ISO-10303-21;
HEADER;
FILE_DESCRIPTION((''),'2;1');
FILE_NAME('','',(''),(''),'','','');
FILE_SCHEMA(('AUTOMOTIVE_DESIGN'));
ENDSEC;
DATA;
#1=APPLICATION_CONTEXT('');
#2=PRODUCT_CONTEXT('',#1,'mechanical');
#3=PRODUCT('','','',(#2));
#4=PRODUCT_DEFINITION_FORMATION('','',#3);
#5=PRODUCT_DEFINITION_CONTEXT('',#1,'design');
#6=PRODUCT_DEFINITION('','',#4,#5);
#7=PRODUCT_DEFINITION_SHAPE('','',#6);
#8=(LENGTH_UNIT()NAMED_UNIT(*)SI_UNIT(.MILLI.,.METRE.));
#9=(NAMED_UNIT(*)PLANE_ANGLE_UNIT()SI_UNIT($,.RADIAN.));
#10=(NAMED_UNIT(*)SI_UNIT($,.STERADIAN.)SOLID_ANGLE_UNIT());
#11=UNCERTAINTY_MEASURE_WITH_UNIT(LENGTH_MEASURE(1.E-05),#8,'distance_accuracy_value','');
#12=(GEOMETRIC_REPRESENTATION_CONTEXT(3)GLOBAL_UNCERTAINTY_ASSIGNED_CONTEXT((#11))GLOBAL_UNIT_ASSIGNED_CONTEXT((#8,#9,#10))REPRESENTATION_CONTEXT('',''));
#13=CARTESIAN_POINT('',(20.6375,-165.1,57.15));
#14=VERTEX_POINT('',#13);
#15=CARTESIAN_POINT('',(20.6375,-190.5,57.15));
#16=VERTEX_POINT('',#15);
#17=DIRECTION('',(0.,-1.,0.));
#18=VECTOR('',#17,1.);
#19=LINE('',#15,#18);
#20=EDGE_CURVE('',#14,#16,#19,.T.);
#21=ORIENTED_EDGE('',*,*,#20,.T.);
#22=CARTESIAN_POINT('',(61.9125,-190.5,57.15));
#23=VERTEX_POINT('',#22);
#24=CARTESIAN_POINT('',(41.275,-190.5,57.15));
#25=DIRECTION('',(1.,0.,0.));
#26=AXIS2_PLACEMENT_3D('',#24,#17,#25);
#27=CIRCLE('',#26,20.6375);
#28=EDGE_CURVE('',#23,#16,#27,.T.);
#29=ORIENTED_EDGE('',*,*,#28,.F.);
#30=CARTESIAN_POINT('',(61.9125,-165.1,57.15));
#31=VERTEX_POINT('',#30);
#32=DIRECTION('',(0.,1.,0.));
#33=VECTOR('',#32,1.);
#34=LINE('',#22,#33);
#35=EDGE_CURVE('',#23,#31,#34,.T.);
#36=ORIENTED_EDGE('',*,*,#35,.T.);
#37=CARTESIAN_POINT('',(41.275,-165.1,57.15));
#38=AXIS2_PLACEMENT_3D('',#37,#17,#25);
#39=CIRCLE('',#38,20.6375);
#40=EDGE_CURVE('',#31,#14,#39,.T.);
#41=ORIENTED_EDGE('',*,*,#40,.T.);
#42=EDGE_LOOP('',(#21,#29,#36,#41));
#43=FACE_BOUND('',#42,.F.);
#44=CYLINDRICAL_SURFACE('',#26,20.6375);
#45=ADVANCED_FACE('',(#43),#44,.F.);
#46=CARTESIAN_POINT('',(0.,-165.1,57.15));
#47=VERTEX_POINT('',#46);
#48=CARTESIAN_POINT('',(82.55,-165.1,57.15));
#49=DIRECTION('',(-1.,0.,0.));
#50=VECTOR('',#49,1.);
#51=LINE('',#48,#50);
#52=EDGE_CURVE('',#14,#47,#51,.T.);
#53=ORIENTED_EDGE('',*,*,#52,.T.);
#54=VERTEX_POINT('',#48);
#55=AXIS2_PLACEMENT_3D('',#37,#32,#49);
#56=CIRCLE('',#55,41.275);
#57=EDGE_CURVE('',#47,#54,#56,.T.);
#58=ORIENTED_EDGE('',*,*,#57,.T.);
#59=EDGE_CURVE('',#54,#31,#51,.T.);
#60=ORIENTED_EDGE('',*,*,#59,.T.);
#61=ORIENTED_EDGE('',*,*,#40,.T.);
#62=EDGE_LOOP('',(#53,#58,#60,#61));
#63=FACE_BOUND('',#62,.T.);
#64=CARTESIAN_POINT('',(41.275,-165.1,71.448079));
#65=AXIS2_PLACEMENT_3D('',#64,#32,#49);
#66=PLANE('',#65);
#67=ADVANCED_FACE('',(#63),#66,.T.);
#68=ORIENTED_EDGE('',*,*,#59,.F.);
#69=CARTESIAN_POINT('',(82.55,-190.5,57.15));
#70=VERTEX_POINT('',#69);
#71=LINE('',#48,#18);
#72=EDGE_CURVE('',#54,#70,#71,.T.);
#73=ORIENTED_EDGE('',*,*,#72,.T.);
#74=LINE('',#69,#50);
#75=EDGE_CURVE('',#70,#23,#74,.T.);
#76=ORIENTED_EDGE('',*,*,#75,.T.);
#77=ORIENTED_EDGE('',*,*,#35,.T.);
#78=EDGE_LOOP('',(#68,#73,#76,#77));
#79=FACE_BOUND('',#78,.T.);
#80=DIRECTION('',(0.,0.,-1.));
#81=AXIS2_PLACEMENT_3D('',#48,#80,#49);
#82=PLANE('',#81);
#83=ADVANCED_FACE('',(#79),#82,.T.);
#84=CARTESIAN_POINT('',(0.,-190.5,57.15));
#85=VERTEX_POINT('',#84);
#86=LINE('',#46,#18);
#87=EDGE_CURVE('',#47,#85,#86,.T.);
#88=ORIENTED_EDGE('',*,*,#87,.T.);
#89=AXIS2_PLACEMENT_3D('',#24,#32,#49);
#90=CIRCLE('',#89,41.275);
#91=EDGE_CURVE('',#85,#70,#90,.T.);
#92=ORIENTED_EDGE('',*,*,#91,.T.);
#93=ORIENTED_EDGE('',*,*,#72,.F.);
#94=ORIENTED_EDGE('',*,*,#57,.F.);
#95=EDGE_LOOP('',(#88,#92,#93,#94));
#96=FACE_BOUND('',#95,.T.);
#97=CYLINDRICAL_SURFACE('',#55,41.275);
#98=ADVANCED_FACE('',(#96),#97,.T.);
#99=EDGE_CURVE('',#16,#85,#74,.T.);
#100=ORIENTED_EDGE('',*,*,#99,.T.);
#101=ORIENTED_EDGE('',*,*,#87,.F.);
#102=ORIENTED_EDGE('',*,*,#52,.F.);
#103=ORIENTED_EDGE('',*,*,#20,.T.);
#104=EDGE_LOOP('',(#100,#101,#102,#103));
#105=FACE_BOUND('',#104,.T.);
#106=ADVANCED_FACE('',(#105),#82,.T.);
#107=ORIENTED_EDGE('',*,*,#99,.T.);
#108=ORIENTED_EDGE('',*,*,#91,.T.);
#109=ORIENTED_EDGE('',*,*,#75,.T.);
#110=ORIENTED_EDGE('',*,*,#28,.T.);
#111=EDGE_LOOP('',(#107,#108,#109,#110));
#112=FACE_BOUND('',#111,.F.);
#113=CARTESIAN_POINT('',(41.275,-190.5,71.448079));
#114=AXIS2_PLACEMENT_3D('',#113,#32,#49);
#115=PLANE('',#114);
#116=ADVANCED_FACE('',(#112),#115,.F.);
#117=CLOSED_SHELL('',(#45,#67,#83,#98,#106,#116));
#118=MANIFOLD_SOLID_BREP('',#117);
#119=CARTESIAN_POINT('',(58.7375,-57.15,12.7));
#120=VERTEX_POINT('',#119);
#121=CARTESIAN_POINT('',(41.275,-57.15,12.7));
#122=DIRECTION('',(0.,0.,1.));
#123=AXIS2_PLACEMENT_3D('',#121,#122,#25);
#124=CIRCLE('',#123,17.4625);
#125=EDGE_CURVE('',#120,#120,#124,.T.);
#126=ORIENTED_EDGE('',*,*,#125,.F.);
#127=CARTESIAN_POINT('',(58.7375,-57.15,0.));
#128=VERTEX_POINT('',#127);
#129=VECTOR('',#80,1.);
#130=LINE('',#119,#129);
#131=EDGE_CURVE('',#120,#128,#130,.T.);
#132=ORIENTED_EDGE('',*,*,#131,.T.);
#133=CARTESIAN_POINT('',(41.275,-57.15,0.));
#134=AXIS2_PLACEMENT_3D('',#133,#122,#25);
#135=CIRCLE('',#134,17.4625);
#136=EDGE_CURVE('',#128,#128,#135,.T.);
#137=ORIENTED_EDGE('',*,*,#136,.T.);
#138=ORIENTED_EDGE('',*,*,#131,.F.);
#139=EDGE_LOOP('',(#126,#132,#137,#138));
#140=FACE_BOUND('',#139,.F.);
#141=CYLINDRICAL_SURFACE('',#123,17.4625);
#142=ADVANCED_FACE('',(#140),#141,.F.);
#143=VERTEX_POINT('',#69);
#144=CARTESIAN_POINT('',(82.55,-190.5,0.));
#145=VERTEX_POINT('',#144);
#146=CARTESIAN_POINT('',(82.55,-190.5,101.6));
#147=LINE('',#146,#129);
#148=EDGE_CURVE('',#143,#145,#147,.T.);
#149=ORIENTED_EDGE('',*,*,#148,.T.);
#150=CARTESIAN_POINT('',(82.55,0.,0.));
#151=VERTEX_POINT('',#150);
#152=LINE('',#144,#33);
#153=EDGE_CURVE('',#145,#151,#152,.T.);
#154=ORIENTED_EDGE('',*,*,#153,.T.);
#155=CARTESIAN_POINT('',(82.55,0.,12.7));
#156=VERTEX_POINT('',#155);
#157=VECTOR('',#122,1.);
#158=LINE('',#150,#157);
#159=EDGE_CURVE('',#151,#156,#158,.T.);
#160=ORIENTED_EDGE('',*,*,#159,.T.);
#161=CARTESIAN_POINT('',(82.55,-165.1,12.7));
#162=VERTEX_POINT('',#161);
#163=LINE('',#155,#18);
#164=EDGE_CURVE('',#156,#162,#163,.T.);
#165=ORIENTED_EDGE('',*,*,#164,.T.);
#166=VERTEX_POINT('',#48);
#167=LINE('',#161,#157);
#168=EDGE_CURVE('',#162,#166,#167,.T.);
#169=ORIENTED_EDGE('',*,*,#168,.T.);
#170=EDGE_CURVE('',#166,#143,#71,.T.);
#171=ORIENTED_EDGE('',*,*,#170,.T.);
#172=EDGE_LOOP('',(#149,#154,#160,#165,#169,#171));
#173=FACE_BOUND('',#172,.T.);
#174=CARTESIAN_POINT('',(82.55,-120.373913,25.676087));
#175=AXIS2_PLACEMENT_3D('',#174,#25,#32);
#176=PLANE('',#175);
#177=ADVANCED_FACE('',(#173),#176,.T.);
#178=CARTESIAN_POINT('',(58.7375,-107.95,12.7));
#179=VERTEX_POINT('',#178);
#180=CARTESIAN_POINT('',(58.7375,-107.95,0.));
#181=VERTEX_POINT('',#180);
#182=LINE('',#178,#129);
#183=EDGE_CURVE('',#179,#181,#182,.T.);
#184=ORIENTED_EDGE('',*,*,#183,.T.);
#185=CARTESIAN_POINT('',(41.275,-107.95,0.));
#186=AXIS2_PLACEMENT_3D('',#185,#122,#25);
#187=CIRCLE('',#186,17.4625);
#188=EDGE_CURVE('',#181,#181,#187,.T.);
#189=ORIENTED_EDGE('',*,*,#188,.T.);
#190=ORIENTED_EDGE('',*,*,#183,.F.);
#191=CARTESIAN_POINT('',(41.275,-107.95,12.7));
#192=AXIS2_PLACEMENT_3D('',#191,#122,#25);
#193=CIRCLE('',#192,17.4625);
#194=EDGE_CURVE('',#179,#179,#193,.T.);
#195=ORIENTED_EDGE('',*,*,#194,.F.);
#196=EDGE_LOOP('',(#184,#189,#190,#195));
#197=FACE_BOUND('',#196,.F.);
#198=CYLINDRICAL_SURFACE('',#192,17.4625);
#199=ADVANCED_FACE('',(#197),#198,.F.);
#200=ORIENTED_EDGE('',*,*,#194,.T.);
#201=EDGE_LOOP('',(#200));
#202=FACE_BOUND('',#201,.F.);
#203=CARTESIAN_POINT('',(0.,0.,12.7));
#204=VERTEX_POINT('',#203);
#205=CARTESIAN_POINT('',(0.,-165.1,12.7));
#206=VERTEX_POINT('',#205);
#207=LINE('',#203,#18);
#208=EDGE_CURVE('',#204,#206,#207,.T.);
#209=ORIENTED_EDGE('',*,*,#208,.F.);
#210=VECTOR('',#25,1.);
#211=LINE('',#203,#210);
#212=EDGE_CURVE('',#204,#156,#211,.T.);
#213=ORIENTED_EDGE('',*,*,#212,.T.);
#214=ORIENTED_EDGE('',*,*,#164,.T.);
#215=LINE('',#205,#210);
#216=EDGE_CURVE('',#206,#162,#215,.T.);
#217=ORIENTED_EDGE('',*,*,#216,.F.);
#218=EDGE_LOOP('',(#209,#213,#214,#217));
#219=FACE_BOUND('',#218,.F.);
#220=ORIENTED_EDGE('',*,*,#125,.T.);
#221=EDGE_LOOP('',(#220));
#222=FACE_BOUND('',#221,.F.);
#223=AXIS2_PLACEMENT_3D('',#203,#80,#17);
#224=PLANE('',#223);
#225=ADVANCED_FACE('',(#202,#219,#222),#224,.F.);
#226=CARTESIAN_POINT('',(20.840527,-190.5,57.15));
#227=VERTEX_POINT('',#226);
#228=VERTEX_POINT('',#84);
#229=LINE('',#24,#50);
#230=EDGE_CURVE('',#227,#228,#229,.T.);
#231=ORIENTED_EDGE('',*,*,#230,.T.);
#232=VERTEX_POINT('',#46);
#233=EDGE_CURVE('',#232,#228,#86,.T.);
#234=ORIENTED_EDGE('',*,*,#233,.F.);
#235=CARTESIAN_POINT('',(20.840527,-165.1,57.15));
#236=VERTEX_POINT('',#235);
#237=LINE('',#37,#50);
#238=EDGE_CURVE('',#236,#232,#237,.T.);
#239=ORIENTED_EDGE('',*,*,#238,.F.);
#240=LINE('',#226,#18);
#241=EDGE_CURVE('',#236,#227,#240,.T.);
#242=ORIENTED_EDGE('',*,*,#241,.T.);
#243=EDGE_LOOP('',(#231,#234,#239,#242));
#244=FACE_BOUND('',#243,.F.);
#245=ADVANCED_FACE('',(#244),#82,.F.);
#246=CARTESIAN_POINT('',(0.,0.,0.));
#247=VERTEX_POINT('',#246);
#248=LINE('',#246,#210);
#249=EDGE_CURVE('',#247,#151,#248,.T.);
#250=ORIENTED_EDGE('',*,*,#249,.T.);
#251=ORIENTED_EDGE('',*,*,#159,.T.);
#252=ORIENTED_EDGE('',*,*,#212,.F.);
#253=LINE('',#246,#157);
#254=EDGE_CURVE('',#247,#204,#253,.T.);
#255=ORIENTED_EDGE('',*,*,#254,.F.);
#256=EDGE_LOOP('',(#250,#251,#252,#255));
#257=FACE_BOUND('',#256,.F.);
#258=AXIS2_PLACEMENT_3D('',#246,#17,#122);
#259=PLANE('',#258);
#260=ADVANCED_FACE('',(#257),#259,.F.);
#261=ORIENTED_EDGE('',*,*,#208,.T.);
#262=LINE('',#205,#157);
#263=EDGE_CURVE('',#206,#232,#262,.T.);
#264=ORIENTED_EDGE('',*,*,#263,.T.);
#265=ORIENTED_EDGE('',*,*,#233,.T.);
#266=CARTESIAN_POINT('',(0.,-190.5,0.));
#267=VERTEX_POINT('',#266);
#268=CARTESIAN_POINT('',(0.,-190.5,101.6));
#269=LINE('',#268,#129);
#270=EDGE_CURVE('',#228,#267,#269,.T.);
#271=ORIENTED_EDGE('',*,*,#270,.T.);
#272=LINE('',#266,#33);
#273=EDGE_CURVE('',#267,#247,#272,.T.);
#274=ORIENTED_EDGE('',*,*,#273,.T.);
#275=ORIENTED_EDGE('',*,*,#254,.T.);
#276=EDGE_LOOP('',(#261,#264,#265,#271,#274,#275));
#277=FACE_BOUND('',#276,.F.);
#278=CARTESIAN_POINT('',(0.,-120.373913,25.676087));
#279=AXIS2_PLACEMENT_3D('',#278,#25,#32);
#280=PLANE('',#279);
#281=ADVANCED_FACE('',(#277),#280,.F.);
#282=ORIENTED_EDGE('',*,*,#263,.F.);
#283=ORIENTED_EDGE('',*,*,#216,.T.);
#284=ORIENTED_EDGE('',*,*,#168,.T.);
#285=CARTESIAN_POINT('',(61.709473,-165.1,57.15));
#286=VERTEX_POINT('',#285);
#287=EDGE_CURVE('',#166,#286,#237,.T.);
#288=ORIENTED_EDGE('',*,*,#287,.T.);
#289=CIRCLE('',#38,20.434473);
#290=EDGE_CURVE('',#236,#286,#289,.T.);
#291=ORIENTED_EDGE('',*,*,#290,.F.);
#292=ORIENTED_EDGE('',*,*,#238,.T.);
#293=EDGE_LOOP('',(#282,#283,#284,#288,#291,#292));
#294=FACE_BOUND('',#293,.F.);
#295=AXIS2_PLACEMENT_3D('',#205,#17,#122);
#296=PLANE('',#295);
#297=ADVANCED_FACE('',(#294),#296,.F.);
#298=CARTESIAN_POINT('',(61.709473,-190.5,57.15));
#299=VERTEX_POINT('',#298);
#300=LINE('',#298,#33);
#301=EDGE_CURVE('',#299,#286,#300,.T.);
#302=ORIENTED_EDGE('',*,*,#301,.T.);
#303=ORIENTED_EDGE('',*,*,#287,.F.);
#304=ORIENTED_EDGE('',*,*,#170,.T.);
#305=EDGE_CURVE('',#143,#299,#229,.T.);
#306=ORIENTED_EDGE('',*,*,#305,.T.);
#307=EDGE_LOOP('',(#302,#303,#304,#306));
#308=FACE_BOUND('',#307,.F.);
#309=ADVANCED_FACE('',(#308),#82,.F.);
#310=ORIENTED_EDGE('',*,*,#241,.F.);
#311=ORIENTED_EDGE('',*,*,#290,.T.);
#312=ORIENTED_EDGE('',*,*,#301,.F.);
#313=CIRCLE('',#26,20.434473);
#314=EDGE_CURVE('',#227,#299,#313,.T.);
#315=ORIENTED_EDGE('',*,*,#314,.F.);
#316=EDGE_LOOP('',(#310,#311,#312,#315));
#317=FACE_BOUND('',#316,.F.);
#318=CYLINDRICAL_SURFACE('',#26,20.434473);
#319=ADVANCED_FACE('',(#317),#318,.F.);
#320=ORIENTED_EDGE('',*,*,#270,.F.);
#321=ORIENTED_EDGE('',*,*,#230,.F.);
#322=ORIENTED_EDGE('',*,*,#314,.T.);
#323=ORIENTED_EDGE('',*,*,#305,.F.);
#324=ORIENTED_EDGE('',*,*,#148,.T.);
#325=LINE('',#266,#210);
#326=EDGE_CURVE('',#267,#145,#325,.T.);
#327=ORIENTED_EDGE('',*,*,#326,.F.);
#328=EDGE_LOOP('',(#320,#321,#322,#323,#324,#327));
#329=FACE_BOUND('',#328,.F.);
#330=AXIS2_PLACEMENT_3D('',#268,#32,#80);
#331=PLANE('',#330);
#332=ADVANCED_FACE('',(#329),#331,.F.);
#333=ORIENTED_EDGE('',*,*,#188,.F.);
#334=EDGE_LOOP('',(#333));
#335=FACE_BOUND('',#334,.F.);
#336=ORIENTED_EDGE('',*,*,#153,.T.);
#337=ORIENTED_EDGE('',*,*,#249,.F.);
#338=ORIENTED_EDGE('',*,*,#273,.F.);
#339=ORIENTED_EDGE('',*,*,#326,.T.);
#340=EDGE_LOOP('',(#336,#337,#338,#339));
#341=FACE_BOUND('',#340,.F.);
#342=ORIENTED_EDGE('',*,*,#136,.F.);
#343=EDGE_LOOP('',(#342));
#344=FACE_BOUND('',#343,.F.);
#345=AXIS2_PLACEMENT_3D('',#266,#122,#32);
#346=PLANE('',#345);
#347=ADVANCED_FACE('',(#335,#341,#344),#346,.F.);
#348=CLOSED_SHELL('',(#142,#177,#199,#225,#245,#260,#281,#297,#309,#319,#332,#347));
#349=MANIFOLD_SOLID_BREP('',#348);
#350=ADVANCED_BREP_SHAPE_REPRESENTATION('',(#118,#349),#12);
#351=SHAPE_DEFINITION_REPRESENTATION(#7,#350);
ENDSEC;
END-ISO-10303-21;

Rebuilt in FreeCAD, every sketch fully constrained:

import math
import FreeCAD as App
import Part
import Sketcher

V = App.Vector
Q = App.Units.Quantity

doc = App.newDocument("Part")
body = doc.addObject("PartDesign::Body", "Body")

# Sketch on YZ plane
sketch1 = body.newObject("Sketcher::SketchObject", "Sketch")
sketch1.AttachmentSupport = (doc.getObject("YZ_Plane"), [""])
sketch1.MapMode = "FlatFace"
sketch1.addGeometry(Part.LineSegment(V(-190.5, 0, 0), V(0, 0, 0)), False)
sketch1.addGeometry(Part.LineSegment(V(0, 0, 0), V(0, 12.7, 0)), False)
sketch1.addGeometry(Part.LineSegment(V(0, 12.7, 0), V(-165.1, 12.7, 0)), False)
sketch1.addGeometry(Part.LineSegment(V(-165.1, 12.7, 0), V(-165.1, 101.6, 0)), False)
sketch1.addGeometry(Part.LineSegment(V(-165.1, 101.6, 0), V(-190.5, 101.6, 0)), False)
sketch1.addGeometry(Part.LineSegment(V(-190.5, 101.6, 0), V(-190.5, 0, 0)), False)
sketch1.addConstraint(Sketcher.Constraint("Coincident", 0, 2, 1, 1))
sketch1.addConstraint(Sketcher.Constraint("Coincident", 1, 2, 2, 1))
sketch1.addConstraint(Sketcher.Constraint("Coincident", 2, 2, 3, 1))
sketch1.addConstraint(Sketcher.Constraint("Coincident", 3, 2, 4, 1))
sketch1.addConstraint(Sketcher.Constraint("Coincident", 4, 2, 5, 1))
sketch1.addConstraint(Sketcher.Constraint("Coincident", 5, 2, 0, 1))
sketch1.addConstraint(Sketcher.Constraint("Horizontal", 0))
sketch1.addConstraint(Sketcher.Constraint("Vertical", 1))
sketch1.addConstraint(Sketcher.Constraint("Horizontal", 2))
sketch1.addConstraint(Sketcher.Constraint("Vertical", 3))
sketch1.addConstraint(Sketcher.Constraint("Horizontal", 4))
sketch1.addConstraint(Sketcher.Constraint("Vertical", 5))
sketch1.addConstraint(Sketcher.Constraint("Coincident", 0, 2, -1, 1))
sketch1.addConstraint(Sketcher.Constraint("DistanceX", 4, 2, 4, 1, Q("1 in")))
sketch1.addConstraint(Sketcher.Constraint("DistanceY", 5, 2, 5, 1, Q("4 in")))
sketch1.addConstraint(Sketcher.Constraint("DistanceX", 0, 1, 0, 2, Q("7.5 in")))
sketch1.addConstraint(Sketcher.Constraint("DistanceY", 1, 1, 1, 2, Q("0.5 in")))
pad1 = body.newObject("PartDesign::Pad", "Pad")
pad1.Profile = sketch1
pad1.Length = Q("3.25 in")

# Sketch on XY plane
sketch2 = body.newObject("Sketcher::SketchObject", "Sketch001")
sketch2.AttachmentSupport = (doc.getObject("XY_Plane"), [""])
sketch2.MapMode = "FlatFace"
sketch2.AttachmentOffset = App.Placement(V(0, 0, 0.5 * 25.4), App.Rotation())
sketch2.addGeometry(Part.Circle(V(41.275, -57.15, 0), V(0, 0, 1), 17.4625), False)
sketch2.addGeometry(Part.Circle(V(41.275, -107.95, 0), V(0, 0, 1), 17.4625), False)
sketch2.addConstraint(Sketcher.Constraint("Equal", 0, 1))
sketch2.addConstraint(Sketcher.Constraint("Vertical", 0, 3, 1, 3))
sketch2.addConstraint(Sketcher.Constraint("Diameter", 0, Q("1.375 in")))
sketch2.addConstraint(Sketcher.Constraint("DistanceY", 1, 3, 0, 3, Q("2 in")))
sketch2.addConstraint(Sketcher.Constraint("DistanceY", 0, 3, -1, 1, Q("2.25 in")))
sketch2.addConstraint(Sketcher.Constraint("DistanceX", -1, 1, 0, 3, Q("1.625 in")))
pocket1 = body.newObject("PartDesign::Pocket", "Pocket")
pocket1.Profile = sketch2
pocket1.Type = "ThroughAll"

# Sketch on XZ plane
sketch3 = body.newObject("Sketcher::SketchObject", "Sketch002")
sketch3.AttachmentSupport = (doc.getObject("XZ_Plane"), [""])
sketch3.MapMode = "FlatFace"
sketch3.AttachmentOffset = App.Placement(V(0, 0, 6.5 * 25.4), App.Rotation())
sketch3.addGeometry(Part.LineSegment(V(82.55, 101.6, 0), V(82.55, 57.15, 0)), False)
sketch3.addGeometry(Part.LineSegment(V(82.55, 57.15, 0), V(0, 57.15, 0)), False)
sketch3.addGeometry(Part.LineSegment(V(0, 57.15, 0), V(0, 101.6, 0)), False)
sketch3.addGeometry(Part.LineSegment(V(0, 101.6, 0), V(82.55, 101.6, 0)), False)
sketch3.addConstraint(Sketcher.Constraint("Coincident", 0, 2, 1, 1))
sketch3.addConstraint(Sketcher.Constraint("Coincident", 1, 2, 2, 1))
sketch3.addConstraint(Sketcher.Constraint("Coincident", 2, 2, 3, 1))
sketch3.addConstraint(Sketcher.Constraint("Coincident", 3, 2, 0, 1))
sketch3.addConstraint(Sketcher.Constraint("Vertical", 0))
sketch3.addConstraint(Sketcher.Constraint("Horizontal", 1))
sketch3.addConstraint(Sketcher.Constraint("Vertical", 2))
sketch3.addConstraint(Sketcher.Constraint("Horizontal", 3))
sketch3.addConstraint(Sketcher.Constraint("PointOnObject", 1, 2, -2))
sketch3.addConstraint(Sketcher.Constraint("DistanceY", -1, 1, 2, 2, Q("4 in")))
sketch3.addConstraint(Sketcher.Constraint("DistanceX", 1, 2, 1, 1, Q("3.25 in")))
sketch3.addConstraint(Sketcher.Constraint("DistanceY", 0, 2, 0, 1, Q("1.75 in")))
pocket2 = body.newObject("PartDesign::Pocket", "Pocket001")
pocket2.Profile = sketch3
pocket2.Type = "ThroughAll"
pocket2.Reversed = True

# Sketch on XZ plane
sketch4 = body.newObject("Sketcher::SketchObject", "Sketch003")
sketch4.AttachmentSupport = (doc.getObject("XZ_Plane"), [""])
sketch4.MapMode = "FlatFace"
sketch4.AttachmentOffset = App.Placement(V(0, 0, 7.5 * 25.4), App.Rotation())
sketch4.addGeometry(Part.Circle(V(41.275, 57.15, 0), V(0, 0, 1), 20.434473), False)
sketch4.addConstraint(Sketcher.Constraint("DistanceY", -1, 1, 0, 3, Q("2.25 in")))
sketch4.addConstraint(Sketcher.Constraint("DistanceX", -1, 1, 0, 3, Q("1.625 in")))
sketch4.addConstraint(Sketcher.Constraint("Diameter", 0, Q("40.868946 mm")))
pocket3 = body.newObject("PartDesign::Pocket", "Pocket002")
pocket3.Profile = sketch4
pocket3.Length = Q("1 in")
body2 = doc.addObject("PartDesign::Body", "Body001")

# Sketch on XZ plane
sketch5 = body2.newObject("Sketcher::SketchObject", "Sketch004")
sketch5.AttachmentSupport = (doc.getObject("XZ_Plane001"), [""])
sketch5.MapMode = "FlatFace"
sketch5.AttachmentOffset = App.Placement(V(0, 0, 6.5 * 25.4), App.Rotation())
sketch5.addGeometry(Part.LineSegment(V(82.55, 57.15, 0), V(0, 57.15, 0)), False)
sketch5.addGeometry(Part.ArcOfCircle(Part.Circle(V(41.275, 57.15, 0), V(0, 0, 1), 41.275), math.radians(0), math.radians(180)), False)
sketch5.addConstraint(Sketcher.Constraint("Coincident", 0, 1, 1, 1))
sketch5.addConstraint(Sketcher.Constraint("Coincident", 1, 2, 0, 2))
sketch5.addConstraint(Sketcher.Constraint("Horizontal", 0))
sketch5.addConstraint(Sketcher.Constraint("PointOnObject", 1, 2, -2))
sketch5.addConstraint(Sketcher.Constraint("Horizontal", 1, 3, 0, 1))
sketch5.addConstraint(Sketcher.Constraint("Radius", 1, Q("1.625 in")))
sketch5.addConstraint(Sketcher.Constraint("DistanceY", -1, 1, 1, 3, Q("2.25 in")))
pad2 = body2.newObject("PartDesign::Pad", "Pad001")
pad2.Profile = sketch5
pad2.Length = Q("1 in")

# Sketch on XZ plane
sketch6 = body2.newObject("Sketcher::SketchObject", "Sketch005")
sketch6.AttachmentSupport = (doc.getObject("XZ_Plane001"), [""])
sketch6.MapMode = "FlatFace"
sketch6.AttachmentOffset = App.Placement(V(0, 0, 7.5 * 25.4), App.Rotation())
sketch6.addGeometry(Part.Circle(V(41.275, 57.15, 0), V(0, 0, 1), 20.6375), False)
sketch6.addConstraint(Sketcher.Constraint("Diameter", 0, Q("1.625 in")))
sketch6.addConstraint(Sketcher.Constraint("DistanceY", -1, 1, 0, 3, Q("2.25 in")))
sketch6.addConstraint(Sketcher.Constraint("DistanceX", -1, 1, 0, 3, Q("1.625 in")))
pocket4 = body2.newObject("PartDesign::Pocket", "Pocket003")
pocket4.Profile = sketch6
pocket4.Type = "ThroughAll"

doc.recompute()
